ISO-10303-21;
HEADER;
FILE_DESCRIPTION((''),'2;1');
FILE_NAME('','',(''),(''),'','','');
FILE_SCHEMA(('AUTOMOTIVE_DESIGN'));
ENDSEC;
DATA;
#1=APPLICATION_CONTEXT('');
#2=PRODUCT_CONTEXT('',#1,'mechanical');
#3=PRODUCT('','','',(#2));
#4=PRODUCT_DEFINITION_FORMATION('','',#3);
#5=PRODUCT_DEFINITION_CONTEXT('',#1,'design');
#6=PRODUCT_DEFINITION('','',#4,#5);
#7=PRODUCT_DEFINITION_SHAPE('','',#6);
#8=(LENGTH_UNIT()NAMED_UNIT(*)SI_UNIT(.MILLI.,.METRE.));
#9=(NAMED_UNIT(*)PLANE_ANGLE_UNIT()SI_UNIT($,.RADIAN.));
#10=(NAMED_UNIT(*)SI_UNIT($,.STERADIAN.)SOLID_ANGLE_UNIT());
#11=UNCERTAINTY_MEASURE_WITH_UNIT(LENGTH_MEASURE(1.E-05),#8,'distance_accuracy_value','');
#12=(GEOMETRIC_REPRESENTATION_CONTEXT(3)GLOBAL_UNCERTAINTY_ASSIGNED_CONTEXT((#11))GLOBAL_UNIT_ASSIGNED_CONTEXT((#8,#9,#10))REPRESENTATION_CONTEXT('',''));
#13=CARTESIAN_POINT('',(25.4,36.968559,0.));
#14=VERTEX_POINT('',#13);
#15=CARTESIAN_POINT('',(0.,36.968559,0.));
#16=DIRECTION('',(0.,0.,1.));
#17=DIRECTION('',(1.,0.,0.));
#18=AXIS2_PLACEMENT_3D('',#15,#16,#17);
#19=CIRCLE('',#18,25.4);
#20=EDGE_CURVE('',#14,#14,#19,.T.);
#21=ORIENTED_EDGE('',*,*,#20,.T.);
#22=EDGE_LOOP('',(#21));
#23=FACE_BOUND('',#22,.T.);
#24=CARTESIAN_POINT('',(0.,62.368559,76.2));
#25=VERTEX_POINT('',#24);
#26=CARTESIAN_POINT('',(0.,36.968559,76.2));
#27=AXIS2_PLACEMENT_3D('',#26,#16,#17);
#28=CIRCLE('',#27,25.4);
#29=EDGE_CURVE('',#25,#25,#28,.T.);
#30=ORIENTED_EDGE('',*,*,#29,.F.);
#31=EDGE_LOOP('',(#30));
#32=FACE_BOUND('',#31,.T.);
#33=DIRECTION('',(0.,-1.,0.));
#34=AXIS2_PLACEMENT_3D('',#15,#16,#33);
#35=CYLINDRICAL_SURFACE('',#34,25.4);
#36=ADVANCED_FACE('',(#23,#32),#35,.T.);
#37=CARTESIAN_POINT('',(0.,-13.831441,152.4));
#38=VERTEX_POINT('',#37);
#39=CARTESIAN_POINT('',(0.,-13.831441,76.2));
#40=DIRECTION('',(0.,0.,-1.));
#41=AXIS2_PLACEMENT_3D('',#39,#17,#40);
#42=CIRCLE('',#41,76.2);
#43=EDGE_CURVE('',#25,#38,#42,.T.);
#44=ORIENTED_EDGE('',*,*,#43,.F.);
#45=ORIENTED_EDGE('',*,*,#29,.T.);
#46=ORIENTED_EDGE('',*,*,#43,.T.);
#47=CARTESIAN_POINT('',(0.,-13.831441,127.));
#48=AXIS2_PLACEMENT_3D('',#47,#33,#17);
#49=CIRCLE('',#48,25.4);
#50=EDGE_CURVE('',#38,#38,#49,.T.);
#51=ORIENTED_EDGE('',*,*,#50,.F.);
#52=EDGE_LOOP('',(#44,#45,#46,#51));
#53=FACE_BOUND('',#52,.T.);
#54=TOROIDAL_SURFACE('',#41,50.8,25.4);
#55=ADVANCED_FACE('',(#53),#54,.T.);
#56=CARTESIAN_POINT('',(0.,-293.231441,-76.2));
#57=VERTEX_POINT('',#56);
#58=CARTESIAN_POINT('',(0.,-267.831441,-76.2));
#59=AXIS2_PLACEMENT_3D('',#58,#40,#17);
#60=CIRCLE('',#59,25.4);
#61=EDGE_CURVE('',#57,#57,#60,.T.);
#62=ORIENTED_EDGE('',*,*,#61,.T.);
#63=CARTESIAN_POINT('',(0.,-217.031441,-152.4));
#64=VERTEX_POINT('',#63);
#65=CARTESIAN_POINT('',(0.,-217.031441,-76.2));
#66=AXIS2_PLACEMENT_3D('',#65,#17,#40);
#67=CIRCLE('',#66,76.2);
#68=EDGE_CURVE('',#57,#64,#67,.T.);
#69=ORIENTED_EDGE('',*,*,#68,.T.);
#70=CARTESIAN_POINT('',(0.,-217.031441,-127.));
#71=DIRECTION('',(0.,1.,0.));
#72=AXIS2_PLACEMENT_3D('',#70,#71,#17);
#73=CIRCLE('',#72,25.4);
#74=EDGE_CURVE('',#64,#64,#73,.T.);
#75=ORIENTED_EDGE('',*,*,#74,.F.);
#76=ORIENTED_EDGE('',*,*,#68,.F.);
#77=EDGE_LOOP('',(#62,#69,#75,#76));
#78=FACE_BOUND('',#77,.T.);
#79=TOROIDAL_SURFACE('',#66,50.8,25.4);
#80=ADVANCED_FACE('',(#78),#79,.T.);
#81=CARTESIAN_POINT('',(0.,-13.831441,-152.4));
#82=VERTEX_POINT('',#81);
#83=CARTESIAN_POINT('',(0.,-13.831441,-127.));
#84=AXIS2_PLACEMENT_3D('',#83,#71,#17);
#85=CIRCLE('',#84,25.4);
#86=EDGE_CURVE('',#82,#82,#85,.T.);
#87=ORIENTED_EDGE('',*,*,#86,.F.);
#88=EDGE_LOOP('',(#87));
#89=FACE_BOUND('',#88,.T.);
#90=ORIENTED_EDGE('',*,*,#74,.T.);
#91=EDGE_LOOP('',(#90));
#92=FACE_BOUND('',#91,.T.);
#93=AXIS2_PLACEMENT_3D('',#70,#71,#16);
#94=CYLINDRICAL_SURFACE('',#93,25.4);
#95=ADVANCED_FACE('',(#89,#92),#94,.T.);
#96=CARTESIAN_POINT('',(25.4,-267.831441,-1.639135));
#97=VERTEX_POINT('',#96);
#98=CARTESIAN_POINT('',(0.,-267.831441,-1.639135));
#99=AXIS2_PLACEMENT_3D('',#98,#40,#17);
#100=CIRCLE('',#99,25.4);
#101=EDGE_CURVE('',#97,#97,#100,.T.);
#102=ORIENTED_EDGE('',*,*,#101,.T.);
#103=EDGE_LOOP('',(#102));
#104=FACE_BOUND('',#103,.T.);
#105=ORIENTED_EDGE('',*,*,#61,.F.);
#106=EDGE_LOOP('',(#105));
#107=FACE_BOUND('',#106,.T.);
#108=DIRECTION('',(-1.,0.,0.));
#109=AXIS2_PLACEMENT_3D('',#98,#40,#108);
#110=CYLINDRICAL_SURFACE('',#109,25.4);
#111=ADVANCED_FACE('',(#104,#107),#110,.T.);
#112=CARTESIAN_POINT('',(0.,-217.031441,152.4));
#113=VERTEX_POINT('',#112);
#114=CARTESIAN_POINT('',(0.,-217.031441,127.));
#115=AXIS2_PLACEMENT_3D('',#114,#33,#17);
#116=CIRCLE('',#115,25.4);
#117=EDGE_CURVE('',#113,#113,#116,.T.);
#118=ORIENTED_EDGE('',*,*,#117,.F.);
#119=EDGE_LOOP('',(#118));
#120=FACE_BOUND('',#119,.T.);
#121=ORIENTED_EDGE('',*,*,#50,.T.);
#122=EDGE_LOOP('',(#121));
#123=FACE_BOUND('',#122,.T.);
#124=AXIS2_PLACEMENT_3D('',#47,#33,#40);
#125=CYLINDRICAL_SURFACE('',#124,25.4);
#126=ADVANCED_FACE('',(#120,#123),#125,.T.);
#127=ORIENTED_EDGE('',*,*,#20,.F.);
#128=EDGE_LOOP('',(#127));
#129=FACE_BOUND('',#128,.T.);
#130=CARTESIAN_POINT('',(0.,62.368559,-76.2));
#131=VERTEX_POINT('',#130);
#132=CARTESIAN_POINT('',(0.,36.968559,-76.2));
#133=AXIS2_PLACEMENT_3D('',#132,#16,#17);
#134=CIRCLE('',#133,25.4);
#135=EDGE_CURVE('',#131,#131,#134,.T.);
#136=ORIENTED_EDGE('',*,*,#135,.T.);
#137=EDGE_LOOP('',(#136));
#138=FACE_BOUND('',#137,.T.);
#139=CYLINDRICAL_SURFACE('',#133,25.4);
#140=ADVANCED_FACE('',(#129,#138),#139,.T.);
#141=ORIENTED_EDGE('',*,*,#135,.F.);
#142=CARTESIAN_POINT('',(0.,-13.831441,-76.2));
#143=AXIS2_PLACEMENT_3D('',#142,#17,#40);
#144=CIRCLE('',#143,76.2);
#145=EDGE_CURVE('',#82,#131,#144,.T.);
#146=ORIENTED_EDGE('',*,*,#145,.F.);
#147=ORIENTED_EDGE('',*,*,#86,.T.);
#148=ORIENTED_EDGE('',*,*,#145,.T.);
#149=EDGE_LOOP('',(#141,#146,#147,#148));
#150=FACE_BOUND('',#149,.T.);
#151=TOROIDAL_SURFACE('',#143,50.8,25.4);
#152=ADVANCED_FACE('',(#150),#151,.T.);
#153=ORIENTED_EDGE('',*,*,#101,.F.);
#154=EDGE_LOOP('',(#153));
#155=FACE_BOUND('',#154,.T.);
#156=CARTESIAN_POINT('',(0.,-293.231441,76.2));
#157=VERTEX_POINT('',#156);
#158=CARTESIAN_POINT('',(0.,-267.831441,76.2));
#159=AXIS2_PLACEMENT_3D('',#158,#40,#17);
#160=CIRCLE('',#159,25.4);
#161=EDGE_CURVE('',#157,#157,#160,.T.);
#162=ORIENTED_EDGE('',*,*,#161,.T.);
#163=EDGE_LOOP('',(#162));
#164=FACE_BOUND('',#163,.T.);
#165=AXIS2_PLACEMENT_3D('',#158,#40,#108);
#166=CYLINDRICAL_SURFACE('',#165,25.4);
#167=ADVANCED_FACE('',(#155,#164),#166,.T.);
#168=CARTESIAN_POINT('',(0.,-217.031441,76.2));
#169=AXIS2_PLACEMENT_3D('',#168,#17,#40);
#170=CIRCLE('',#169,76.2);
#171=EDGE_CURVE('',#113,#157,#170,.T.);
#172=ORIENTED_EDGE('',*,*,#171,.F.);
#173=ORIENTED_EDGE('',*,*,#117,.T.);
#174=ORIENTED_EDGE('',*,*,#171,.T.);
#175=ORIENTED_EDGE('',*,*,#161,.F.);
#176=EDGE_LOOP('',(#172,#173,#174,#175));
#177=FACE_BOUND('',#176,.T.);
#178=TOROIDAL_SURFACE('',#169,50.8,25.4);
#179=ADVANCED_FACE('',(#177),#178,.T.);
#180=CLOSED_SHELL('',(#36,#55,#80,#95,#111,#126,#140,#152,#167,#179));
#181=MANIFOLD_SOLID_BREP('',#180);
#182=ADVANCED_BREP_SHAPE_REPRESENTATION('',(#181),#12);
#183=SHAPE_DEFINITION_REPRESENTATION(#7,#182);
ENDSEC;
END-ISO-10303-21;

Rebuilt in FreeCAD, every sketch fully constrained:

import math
import FreeCAD as App
import Part
import Sketcher
Q = App.Units.Quantity

doc = App.newDocument("Part")
body = doc.addObject("PartDesign::Body", "Body")

sketch1 = body.newObject("Sketcher::SketchObject", "Sketch")
sketch1.AttachmentSupport = (doc.getObject("XY_Plane"), [""])
sketch1.MapMode = "FlatFace"
sketch1.addGeometry(Part.Circle(App.Vector(0, 36.968559, 0), App.Vector(0, 0, 1), 25.4), False)
sketch1.addConstraint(Sketcher.Constraint("PointOnObject", 0, 3, -2))
sketch1.addConstraint(Sketcher.Constraint("Diameter", 0, Q("2 in")))
sketch1.addConstraint(Sketcher.Constraint("DistanceY", -1, 1, 0, 3, Q("36.968559 mm")))

sketch2 = body.newObject("Sketcher::SketchObject", "Sketch001")
sketch2.AttachmentSupport = (doc.getObject("YZ_Plane"), [""])
sketch2.MapMode = "FlatFace"
sketch2.addGeometry(Part.LineSegment(App.Vector(36.968559, 0, 0), App.Vector(36.968559, -76.2, 0)), False)
sketch2.addGeometry(Part.ArcOfCircle(Part.Circle(App.Vector(-13.831441, -76.2, 0), App.Vector(0, 0, 1), 50.8), math.radians(-90), math.radians(0)), False)
sketch2.addGeometry(Part.LineSegment(App.Vector(-13.831441, -127, 0), App.Vector(-217.031441, -127, 0)), False)
sketch2.addGeometry(Part.ArcOfCircle(Part.Circle(App.Vector(-217.031441, -76.2, 0), App.Vector(0, 0, 1), 50.8), math.radians(-180), math.radians(-90)), False)
sketch2.addGeometry(Part.LineSegment(App.Vector(-267.831441, -76.2, 0), App.Vector(-267.831441, 76.2, 0)), False)
sketch2.addGeometry(Part.ArcOfCircle(Part.Circle(App.Vector(-217.031441, 76.2, 0), App.Vector(0, 0, 1), 50.8), math.radians(90), math.radians(180)), False)
sketch2.addGeometry(Part.LineSegment(App.Vector(-217.031441, 127, 0), App.Vector(-13.831441, 127, 0)), False)
sketch2.addGeometry(Part.ArcOfCircle(Part.Circle(App.Vector(-13.831441, 76.2, 0), App.Vector(0, 0, 1), 50.8), math.radians(0), math.radians(90)), False)
sketch2.addGeometry(Part.LineSegment(App.Vector(36.968559, 76.2, 0), App.Vector(36.968559, 0, 0)), False)
sketch2.addConstraint(Sketcher.Constraint("Tangent", 0, 2, 1, 2))
sketch2.addConstraint(Sketcher.Constraint("Tangent", 1, 1, 2, 1))
sketch2.addConstraint(Sketcher.Constraint("Tangent", 2, 2, 3, 2))
sketch2.addConstraint(Sketcher.Constraint("Tangent", 3, 1, 4, 1))
sketch2.addConstraint(Sketcher.Constraint("Tangent", 4, 2, 5, 2))
sketch2.addConstraint(Sketcher.Constraint("Tangent", 5, 1, 6, 1))
sketch2.addConstraint(Sketcher.Constraint("Tangent", 6, 2, 7, 2))
sketch2.addConstraint(Sketcher.Constraint("Tangent", 7, 1, 8, 1))
sketch2.addConstraint(Sketcher.Constraint("Coincident", 8, 2, 0, 1))
sketch2.addConstraint(Sketcher.Constraint("Vertical", 0))
sketch2.addConstraint(Sketcher.Constraint("Horizontal", 2))
sketch2.addConstraint(Sketcher.Constraint("Vertical", 4))
sketch2.addConstraint(Sketcher.Constraint("Horizontal", 6))
sketch2.addConstraint(Sketcher.Constraint("Vertical", 8))
sketch2.addConstraint(Sketcher.Constraint("Equal", 1, 3))
sketch2.addConstraint(Sketcher.Constraint("Equal", 3, 5))
sketch2.addConstraint(Sketcher.Constraint("Equal", 5, 7))
sketch2.addConstraint(Sketcher.Constraint("PointOnObject", 8, 2, -1))
sketch2.addConstraint(Sketcher.Constraint("Equal", 0, 8))
sketch2.addConstraint(Sketcher.Constraint("Radius", 1, Q("2 in")))
sketch2.addConstraint(Sketcher.Constraint("DistanceX", 2, 2, 2, 1, Q("8 in")))
sketch2.addConstraint(Sketcher.Constraint("DistanceY", 0, 2, 0, 1, Q("3 in")))
sketch2.addConstraint(Sketcher.Constraint("DistanceX", 1, 3, -1, 1, Q("13.831441 mm")))
doc.recompute()

additivepipe = body.newObject("PartDesign::AdditivePipe", "AdditivePipe")
additivepipe.Profile = sketch1
additivepipe.Spine = (sketch2, ["Edge1", "Edge2", "Edge3", "Edge4", "Edge5", "Edge6", "Edge7", "Edge8", "Edge9"])

doc.recompute()
